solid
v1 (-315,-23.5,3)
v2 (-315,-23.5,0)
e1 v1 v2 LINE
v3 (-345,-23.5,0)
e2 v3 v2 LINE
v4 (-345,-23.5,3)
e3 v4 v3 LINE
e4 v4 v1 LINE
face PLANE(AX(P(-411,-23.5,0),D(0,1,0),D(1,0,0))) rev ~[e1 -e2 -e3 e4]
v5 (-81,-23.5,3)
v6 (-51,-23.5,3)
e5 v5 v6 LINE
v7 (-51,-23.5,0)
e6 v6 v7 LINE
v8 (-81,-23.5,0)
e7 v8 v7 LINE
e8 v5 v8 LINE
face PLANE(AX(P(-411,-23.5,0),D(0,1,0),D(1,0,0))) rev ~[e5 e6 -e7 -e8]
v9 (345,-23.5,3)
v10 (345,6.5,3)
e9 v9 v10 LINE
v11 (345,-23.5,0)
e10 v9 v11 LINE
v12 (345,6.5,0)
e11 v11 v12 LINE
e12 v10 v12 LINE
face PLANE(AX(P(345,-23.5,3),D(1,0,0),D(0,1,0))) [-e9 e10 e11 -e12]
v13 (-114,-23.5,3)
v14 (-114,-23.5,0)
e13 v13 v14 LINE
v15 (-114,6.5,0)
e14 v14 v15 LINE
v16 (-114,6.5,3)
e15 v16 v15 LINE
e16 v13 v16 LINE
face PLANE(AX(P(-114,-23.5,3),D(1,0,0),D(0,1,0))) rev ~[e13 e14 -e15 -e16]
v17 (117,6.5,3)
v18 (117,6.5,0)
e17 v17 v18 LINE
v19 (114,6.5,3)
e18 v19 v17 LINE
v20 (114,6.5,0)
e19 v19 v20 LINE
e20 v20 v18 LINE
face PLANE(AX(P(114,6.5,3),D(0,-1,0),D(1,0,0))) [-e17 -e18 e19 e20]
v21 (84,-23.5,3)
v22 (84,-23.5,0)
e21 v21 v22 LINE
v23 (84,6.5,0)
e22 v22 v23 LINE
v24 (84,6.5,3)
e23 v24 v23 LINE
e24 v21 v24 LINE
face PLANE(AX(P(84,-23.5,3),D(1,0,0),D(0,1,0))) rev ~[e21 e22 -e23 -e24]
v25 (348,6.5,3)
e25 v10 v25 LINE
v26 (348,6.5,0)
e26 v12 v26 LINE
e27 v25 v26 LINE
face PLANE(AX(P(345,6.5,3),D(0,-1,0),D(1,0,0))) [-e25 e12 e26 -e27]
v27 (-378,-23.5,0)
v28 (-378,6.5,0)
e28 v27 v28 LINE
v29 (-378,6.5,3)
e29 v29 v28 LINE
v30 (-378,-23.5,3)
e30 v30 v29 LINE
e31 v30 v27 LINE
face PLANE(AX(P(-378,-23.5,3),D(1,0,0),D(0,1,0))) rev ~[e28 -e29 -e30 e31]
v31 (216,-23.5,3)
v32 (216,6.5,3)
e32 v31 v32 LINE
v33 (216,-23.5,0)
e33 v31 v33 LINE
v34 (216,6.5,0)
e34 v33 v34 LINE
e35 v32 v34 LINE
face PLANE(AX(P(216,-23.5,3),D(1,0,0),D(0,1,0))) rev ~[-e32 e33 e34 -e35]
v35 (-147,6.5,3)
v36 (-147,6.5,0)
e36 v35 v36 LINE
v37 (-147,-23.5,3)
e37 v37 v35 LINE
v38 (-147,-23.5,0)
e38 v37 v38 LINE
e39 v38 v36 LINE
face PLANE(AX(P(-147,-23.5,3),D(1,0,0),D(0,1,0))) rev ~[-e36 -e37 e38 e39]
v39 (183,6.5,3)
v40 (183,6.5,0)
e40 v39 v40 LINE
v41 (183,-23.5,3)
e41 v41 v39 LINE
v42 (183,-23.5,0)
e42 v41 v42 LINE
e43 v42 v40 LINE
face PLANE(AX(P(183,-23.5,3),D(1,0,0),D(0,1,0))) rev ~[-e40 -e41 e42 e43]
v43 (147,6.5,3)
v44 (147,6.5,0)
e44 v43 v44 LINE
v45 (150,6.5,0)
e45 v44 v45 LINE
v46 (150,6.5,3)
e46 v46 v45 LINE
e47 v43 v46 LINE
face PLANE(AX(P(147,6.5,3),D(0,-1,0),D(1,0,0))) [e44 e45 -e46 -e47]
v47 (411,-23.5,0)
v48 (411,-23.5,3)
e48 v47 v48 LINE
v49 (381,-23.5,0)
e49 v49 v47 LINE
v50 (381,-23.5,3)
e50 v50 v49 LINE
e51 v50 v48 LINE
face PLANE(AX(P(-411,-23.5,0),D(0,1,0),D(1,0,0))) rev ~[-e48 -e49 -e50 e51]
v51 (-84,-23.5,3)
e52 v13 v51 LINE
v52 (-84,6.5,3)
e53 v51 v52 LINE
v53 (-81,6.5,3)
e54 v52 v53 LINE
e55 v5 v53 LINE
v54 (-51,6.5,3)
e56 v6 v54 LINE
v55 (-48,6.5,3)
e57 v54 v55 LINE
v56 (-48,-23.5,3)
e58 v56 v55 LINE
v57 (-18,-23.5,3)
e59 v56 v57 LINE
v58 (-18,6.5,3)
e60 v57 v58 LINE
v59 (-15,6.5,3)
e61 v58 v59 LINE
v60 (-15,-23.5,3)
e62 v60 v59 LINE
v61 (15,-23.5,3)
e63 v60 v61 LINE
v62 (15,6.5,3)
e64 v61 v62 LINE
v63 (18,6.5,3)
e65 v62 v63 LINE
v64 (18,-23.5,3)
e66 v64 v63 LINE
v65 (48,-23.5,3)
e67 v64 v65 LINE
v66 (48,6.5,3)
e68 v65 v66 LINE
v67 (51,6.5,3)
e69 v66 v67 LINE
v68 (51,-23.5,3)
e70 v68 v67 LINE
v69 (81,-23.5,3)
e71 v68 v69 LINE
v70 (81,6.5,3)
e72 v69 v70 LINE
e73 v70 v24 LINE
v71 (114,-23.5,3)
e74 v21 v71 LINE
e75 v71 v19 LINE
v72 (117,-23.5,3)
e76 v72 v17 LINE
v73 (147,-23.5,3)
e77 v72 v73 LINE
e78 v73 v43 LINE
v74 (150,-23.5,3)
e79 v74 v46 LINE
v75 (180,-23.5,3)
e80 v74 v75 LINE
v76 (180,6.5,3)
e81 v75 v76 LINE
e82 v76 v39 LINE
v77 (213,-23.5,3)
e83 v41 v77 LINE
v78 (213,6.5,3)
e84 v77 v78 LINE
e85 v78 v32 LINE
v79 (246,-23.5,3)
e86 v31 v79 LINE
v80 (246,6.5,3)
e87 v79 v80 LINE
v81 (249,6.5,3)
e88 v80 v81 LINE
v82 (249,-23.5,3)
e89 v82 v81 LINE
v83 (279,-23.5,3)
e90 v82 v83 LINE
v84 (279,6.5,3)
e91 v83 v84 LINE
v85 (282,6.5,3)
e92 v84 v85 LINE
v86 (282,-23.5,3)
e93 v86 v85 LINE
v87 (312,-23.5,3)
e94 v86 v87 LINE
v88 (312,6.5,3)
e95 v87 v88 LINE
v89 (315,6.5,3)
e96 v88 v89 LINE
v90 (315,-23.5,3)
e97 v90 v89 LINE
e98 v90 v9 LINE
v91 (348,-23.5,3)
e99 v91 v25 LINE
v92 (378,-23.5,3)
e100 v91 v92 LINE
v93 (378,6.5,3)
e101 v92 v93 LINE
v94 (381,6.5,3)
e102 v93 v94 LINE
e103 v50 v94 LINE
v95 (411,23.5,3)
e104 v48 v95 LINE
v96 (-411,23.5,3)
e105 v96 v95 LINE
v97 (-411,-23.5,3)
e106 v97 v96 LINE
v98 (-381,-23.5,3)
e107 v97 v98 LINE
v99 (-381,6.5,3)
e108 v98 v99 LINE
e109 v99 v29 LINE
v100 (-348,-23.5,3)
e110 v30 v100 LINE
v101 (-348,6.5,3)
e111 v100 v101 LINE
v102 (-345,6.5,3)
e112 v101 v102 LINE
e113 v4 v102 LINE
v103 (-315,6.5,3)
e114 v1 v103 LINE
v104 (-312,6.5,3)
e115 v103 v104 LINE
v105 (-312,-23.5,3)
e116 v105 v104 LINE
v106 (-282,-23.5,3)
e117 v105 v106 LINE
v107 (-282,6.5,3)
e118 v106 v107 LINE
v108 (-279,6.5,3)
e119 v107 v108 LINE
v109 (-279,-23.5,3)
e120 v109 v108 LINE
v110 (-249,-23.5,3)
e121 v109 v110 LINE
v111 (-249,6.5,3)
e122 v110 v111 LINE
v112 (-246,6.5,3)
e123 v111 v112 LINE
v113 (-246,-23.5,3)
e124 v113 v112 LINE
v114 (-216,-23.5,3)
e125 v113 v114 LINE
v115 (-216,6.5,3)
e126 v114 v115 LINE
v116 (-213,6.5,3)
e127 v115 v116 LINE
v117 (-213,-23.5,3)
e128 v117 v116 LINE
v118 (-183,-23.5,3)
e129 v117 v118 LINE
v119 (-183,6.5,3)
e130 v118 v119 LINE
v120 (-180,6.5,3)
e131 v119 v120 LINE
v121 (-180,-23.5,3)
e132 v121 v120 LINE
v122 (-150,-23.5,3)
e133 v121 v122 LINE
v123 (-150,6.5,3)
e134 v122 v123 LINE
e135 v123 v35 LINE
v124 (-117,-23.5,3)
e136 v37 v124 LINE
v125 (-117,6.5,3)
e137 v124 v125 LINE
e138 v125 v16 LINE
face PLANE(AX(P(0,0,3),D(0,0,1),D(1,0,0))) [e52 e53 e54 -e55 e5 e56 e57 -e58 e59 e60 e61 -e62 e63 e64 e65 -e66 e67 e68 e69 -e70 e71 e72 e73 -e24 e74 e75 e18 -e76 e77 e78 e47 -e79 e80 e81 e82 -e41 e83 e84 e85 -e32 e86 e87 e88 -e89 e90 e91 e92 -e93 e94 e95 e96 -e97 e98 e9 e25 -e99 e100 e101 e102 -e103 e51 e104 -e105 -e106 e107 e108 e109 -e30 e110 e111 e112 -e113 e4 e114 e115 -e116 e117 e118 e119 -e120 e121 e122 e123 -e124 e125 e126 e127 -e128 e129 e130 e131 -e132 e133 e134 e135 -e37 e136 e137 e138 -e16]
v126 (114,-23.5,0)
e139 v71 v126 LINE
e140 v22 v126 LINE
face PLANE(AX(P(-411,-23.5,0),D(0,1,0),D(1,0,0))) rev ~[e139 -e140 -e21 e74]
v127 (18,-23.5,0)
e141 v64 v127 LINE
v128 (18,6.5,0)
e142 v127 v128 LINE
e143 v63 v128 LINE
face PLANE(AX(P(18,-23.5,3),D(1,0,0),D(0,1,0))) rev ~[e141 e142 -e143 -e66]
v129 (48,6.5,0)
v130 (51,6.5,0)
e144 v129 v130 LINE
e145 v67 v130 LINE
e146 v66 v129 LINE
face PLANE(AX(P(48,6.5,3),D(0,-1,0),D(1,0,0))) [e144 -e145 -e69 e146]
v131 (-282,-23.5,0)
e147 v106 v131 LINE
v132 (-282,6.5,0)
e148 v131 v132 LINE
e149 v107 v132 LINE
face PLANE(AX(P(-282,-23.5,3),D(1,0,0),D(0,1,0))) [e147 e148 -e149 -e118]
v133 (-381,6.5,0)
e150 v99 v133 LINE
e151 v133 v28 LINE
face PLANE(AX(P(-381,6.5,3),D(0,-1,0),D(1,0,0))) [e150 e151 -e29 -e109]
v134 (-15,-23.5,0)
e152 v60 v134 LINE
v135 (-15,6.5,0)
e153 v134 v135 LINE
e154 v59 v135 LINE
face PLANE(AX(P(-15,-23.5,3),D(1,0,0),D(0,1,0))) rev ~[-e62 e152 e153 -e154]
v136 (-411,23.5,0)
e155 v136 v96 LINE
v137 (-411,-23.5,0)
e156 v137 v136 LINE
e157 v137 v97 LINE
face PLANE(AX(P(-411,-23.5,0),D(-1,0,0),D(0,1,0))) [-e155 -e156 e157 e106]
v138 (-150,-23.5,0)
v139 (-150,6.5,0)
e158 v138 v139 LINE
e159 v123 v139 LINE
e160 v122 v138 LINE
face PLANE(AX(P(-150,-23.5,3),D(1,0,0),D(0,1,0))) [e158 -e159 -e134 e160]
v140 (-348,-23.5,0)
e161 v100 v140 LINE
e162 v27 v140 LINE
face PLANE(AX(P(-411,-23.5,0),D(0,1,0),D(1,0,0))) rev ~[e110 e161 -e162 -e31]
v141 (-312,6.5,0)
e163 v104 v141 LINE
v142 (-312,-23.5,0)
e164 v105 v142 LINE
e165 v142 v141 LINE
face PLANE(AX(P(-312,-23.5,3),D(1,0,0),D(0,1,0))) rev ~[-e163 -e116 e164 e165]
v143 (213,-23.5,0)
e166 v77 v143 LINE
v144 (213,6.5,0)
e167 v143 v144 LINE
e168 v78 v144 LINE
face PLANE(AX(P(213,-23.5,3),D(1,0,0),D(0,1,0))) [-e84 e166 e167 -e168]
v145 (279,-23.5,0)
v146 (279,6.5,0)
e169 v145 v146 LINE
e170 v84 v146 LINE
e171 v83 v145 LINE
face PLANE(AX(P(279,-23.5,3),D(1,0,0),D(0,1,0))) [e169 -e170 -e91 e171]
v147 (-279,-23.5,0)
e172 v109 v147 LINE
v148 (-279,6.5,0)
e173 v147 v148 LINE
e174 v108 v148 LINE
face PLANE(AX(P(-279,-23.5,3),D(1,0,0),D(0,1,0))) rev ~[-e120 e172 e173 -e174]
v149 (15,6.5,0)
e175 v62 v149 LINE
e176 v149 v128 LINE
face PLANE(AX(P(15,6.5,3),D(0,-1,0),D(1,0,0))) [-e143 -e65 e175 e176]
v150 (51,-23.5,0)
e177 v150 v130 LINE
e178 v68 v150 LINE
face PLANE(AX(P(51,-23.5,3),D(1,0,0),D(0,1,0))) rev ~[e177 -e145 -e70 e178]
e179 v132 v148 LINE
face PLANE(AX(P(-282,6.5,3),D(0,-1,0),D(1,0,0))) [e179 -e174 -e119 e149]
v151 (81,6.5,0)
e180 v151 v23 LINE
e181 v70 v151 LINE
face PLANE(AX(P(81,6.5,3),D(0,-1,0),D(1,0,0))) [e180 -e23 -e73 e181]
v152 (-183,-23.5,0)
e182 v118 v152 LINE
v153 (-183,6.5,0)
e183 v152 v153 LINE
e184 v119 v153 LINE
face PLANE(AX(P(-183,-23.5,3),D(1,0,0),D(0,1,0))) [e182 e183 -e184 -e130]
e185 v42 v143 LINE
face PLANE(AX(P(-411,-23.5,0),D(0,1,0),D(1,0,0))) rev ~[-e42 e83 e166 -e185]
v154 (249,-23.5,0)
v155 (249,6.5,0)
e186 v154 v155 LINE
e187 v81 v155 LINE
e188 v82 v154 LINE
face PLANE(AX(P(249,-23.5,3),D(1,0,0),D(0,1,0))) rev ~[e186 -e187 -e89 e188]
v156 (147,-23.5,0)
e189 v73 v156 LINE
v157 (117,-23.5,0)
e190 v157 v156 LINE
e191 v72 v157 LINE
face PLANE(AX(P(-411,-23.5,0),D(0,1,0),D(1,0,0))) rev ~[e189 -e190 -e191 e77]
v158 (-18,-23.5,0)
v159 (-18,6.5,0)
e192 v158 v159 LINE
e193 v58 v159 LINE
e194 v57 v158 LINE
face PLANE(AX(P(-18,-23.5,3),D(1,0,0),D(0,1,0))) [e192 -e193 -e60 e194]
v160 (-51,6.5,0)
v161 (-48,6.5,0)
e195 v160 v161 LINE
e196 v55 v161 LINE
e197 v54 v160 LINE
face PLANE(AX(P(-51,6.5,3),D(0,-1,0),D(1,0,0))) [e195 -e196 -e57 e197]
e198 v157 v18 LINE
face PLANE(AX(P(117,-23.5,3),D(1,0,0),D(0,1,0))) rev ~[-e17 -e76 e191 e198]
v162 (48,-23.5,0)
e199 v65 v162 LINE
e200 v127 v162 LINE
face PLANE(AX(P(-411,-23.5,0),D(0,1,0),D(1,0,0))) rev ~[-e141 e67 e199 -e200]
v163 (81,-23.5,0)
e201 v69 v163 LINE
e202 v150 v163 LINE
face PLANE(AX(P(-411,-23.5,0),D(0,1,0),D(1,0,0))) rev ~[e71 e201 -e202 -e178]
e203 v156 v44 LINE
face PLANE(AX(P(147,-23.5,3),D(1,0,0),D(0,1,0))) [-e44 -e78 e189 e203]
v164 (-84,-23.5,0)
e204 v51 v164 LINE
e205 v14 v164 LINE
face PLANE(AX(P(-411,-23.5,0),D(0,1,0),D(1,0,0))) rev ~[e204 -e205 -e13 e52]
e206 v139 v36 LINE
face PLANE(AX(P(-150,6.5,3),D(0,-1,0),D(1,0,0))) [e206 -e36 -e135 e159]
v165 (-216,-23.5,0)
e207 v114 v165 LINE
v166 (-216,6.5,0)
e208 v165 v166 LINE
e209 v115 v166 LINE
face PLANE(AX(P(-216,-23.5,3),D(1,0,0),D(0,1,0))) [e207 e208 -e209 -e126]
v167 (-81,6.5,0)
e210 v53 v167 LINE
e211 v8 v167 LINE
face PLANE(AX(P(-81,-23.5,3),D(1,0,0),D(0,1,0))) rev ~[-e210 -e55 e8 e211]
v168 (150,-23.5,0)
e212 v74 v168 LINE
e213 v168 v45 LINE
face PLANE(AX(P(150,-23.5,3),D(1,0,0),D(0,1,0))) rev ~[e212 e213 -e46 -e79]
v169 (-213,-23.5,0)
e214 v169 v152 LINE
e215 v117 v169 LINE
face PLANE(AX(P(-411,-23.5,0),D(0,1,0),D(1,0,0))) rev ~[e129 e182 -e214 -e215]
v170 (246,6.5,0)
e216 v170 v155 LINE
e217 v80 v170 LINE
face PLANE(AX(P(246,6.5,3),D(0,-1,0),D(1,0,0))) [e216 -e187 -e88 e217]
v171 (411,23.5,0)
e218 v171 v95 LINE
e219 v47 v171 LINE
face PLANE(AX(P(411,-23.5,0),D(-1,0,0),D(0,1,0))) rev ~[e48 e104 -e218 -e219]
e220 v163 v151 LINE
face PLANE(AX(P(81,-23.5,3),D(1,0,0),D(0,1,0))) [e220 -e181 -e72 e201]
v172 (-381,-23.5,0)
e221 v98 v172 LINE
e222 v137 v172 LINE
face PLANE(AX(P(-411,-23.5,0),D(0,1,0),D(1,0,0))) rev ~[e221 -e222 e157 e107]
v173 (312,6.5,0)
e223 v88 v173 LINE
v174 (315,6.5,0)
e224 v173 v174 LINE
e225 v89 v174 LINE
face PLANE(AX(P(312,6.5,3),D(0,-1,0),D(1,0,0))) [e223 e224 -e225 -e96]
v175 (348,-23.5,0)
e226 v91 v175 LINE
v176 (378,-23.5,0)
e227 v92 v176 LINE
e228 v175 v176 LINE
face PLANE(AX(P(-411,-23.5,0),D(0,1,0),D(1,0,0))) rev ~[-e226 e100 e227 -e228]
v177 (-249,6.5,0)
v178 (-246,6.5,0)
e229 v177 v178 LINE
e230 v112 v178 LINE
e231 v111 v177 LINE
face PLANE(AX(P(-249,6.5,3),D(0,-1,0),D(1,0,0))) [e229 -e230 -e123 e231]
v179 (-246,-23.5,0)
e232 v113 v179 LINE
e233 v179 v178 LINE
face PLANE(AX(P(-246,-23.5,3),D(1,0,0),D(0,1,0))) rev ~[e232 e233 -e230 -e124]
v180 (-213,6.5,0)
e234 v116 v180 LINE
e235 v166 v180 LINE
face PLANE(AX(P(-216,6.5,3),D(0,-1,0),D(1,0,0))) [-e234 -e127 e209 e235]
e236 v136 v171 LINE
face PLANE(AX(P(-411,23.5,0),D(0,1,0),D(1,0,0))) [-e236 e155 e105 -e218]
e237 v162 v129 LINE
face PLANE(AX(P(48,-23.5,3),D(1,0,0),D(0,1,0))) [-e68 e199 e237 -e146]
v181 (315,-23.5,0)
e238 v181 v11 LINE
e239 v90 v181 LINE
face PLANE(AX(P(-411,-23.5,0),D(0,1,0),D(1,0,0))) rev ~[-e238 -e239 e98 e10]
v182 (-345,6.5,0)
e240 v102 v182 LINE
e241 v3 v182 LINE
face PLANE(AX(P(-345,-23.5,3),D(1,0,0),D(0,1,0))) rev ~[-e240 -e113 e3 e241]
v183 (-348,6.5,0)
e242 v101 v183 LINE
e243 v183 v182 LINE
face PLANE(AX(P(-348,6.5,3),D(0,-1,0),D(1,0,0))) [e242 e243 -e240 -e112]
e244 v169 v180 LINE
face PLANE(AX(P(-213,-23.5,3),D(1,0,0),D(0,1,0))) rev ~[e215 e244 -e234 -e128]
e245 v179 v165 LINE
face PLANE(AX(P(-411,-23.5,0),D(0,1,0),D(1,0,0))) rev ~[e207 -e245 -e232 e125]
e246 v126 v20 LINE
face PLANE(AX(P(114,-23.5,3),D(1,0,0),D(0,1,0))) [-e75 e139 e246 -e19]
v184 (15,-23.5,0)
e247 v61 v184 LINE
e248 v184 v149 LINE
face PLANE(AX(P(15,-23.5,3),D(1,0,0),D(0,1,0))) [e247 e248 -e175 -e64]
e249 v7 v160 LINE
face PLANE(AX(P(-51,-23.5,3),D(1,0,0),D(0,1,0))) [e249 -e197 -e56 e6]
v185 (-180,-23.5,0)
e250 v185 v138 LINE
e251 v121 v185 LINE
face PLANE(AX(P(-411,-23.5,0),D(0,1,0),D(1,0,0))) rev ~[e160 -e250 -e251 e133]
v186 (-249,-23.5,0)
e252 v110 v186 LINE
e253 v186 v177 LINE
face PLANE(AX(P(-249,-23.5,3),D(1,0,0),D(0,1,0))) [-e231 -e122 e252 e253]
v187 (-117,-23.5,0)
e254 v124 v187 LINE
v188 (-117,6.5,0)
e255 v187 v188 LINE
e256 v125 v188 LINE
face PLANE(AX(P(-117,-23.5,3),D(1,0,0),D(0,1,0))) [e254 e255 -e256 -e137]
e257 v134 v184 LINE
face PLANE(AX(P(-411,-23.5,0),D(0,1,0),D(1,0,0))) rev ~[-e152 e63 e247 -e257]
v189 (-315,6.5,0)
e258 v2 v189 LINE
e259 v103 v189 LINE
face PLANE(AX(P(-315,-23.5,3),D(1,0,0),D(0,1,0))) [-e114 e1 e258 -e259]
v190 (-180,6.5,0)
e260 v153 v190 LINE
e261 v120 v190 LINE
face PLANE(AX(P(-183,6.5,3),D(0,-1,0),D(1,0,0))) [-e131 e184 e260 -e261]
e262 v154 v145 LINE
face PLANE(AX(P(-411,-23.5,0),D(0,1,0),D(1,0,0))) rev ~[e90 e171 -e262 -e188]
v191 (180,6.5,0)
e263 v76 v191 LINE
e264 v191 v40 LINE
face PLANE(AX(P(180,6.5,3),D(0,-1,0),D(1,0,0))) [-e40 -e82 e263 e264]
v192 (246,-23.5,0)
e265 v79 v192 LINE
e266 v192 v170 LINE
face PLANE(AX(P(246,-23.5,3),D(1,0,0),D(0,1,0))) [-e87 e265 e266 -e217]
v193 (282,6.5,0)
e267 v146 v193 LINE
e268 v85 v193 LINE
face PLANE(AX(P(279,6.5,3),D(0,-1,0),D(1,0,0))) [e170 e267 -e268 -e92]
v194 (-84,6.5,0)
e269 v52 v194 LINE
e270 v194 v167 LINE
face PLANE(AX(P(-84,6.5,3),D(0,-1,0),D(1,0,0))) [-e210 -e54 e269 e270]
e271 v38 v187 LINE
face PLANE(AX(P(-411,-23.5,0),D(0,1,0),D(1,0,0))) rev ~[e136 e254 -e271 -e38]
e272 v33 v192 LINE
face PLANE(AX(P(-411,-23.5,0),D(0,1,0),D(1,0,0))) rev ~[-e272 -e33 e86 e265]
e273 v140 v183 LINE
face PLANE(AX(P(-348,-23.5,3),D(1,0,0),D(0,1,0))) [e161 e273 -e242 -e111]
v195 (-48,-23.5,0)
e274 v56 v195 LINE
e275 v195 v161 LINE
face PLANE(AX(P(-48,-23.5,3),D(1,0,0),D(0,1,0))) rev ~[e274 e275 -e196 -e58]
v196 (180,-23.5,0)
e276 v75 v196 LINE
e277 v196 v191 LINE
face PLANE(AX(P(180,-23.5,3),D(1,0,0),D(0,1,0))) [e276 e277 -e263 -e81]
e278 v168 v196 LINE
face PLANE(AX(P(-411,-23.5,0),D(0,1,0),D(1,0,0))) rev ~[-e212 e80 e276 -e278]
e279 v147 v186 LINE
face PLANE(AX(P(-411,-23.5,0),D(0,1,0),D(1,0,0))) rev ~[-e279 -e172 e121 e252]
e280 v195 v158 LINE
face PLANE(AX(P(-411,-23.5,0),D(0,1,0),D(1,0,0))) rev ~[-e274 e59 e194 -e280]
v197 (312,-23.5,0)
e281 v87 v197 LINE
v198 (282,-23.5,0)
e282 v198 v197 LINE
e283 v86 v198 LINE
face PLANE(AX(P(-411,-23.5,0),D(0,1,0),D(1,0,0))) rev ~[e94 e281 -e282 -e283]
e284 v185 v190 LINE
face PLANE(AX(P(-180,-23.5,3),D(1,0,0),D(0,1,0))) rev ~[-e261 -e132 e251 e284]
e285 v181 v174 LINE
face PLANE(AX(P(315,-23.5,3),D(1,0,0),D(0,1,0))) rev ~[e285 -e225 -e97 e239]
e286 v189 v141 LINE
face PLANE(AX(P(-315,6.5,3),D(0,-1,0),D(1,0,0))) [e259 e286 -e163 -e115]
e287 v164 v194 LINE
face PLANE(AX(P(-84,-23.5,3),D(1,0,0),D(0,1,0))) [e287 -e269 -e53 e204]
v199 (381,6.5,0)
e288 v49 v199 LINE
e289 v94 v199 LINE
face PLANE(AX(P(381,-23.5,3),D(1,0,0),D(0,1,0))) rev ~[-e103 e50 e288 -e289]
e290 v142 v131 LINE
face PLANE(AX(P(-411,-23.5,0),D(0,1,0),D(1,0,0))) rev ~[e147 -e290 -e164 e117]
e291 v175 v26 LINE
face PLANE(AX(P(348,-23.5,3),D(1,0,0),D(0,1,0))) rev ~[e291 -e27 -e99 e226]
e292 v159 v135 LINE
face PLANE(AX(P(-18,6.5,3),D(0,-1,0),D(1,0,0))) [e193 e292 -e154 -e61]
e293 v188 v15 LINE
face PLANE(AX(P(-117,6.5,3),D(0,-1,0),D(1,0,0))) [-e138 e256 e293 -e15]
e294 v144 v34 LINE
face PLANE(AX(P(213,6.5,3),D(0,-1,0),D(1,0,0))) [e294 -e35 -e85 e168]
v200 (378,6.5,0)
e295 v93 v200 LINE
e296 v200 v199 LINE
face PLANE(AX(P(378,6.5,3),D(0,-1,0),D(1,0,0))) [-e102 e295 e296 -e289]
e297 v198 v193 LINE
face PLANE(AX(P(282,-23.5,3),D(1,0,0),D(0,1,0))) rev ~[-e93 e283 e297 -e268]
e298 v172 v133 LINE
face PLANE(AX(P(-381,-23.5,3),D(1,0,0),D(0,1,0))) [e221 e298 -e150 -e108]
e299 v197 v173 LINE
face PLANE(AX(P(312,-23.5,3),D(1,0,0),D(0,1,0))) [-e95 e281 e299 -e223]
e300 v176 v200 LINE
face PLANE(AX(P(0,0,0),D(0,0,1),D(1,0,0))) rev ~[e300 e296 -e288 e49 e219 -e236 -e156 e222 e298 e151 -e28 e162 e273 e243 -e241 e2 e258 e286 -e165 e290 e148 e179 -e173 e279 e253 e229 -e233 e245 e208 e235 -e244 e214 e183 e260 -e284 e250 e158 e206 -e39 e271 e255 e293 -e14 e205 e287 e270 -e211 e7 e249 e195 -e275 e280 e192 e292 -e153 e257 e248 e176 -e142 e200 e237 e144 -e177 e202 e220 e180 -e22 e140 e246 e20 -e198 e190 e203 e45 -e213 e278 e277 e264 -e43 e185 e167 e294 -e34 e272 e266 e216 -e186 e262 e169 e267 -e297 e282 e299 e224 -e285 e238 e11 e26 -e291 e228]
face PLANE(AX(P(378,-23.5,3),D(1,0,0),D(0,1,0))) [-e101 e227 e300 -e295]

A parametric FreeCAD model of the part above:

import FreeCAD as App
import Part
import Sketcher
from FreeCAD import Vector

doc = App.newDocument("Part")
body = doc.addObject("PartDesign::Body", "Body")

# Sketch on XY plane
sketch1 = body.newObject("Sketcher::SketchObject", "Sketch")
sketch1.AttachmentSupport = (doc.getObject("XY_Plane"), [""])
sketch1.MapMode = "FlatFace"
sketch1.addGeometry([
    Part.LineSegment(Vector(-411, 24, 0), Vector(-411, -24, 0)),
    Part.LineSegment(Vector(-411, -24, 0), Vector(411, -24, 0)),
    Part.LineSegment(Vector(411, -24, 0), Vector(411, 24, 0)),
    Part.LineSegment(Vector(411, 24, 0), Vector(-411, 24, 0)),
], False)
sketch1.addConstraint([
    Sketcher.Constraint("Coincident", 0, 2, 1, 1),
    Sketcher.Constraint("Coincident", 1, 2, 2, 1),
    Sketcher.Constraint("Coincident", 2, 2, 3, 1),
    Sketcher.Constraint("Coincident", 3, 2, 0, 1),
    Sketcher.Constraint("Vertical", 0),
    Sketcher.Constraint("Horizontal", 1),
    Sketcher.Constraint("Vertical", 2),
    Sketcher.Constraint("Horizontal", 3),
    Sketcher.Constraint("Symmetric", 0, 2, 2, 2, -1, 1),
    Sketcher.Constraint("DistanceX", 1, 1, 1, 2, 822.0),
    Sketcher.Constraint("DistanceY", 0, 2, 0, 1, 47.0),
])
pad1 = body.newObject("PartDesign::Pad", "Pad")
pad1.Profile = sketch1
pad1.Length = 3

# Sketch on XY plane
sketch2 = body.newObject("Sketcher::SketchObject", "Sketch001")
sketch2.AttachmentSupport = (doc.getObject("XY_Plane"), [""])
sketch2.MapMode = "FlatFace"
sketch2.AttachmentOffset = App.Placement(Vector(0, 0, 3), App.Rotation())
sketch2.addGeometry([
    Part.LineSegment(Vector(-381, 6.5, 0), Vector(-381, -23.5, 0)),
    Part.LineSegment(Vector(-381, -23.5, 0), Vector(-378, -23.5, 0)),
    Part.LineSegment(Vector(-378, -23.5, 0), Vector(-378, 6.5, 0)),
    Part.LineSegment(Vector(-378, 6.5, 0), Vector(-381, 6.5, 0)),
], False)
sketch2.addConstraint([
    Sketcher.Constraint("Coincident", 0, 2, 1, 1),
    Sketcher.Constraint("Coincident", 1, 2, 2, 1),
    Sketcher.Constraint("Coincident", 2, 2, 3, 1),
    Sketcher.Constraint("Coincident", 3, 2, 0, 1),
    Sketcher.Constraint("Vertical", 0),
    Sketcher.Constraint("Horizontal", 1),
    Sketcher.Constraint("Vertical", 2),
    Sketcher.Constraint("Horizontal", 3),
    Sketcher.Constraint("DistanceX", 1, 1, 1, 2, 3.0),
    Sketcher.Constraint("DistanceY", 0, 2, 0, 1, 30.0),
    Sketcher.Constraint("DistanceX", 0, 2, -1, 1, 381.0),
    Sketcher.Constraint("DistanceY", 0, 2, -1, 1, 23.5),
])
pocket1 = body.newObject("PartDesign::Pocket", "Pocket")
pocket1.Profile = sketch2
pocket1.Type = "ThroughAll"
doc.recompute()

linearpattern = body.newObject("PartDesign::LinearPattern", "LinearPattern")
linearpattern.Originals = [pocket1]
linearpattern.Direction = (doc.getObject("X_Axis"), [""])
linearpattern.Mode = "offset"
linearpattern.Offset = 33
linearpattern.Occurrences = 24
body.Tip = linearpattern

doc.recompute()
